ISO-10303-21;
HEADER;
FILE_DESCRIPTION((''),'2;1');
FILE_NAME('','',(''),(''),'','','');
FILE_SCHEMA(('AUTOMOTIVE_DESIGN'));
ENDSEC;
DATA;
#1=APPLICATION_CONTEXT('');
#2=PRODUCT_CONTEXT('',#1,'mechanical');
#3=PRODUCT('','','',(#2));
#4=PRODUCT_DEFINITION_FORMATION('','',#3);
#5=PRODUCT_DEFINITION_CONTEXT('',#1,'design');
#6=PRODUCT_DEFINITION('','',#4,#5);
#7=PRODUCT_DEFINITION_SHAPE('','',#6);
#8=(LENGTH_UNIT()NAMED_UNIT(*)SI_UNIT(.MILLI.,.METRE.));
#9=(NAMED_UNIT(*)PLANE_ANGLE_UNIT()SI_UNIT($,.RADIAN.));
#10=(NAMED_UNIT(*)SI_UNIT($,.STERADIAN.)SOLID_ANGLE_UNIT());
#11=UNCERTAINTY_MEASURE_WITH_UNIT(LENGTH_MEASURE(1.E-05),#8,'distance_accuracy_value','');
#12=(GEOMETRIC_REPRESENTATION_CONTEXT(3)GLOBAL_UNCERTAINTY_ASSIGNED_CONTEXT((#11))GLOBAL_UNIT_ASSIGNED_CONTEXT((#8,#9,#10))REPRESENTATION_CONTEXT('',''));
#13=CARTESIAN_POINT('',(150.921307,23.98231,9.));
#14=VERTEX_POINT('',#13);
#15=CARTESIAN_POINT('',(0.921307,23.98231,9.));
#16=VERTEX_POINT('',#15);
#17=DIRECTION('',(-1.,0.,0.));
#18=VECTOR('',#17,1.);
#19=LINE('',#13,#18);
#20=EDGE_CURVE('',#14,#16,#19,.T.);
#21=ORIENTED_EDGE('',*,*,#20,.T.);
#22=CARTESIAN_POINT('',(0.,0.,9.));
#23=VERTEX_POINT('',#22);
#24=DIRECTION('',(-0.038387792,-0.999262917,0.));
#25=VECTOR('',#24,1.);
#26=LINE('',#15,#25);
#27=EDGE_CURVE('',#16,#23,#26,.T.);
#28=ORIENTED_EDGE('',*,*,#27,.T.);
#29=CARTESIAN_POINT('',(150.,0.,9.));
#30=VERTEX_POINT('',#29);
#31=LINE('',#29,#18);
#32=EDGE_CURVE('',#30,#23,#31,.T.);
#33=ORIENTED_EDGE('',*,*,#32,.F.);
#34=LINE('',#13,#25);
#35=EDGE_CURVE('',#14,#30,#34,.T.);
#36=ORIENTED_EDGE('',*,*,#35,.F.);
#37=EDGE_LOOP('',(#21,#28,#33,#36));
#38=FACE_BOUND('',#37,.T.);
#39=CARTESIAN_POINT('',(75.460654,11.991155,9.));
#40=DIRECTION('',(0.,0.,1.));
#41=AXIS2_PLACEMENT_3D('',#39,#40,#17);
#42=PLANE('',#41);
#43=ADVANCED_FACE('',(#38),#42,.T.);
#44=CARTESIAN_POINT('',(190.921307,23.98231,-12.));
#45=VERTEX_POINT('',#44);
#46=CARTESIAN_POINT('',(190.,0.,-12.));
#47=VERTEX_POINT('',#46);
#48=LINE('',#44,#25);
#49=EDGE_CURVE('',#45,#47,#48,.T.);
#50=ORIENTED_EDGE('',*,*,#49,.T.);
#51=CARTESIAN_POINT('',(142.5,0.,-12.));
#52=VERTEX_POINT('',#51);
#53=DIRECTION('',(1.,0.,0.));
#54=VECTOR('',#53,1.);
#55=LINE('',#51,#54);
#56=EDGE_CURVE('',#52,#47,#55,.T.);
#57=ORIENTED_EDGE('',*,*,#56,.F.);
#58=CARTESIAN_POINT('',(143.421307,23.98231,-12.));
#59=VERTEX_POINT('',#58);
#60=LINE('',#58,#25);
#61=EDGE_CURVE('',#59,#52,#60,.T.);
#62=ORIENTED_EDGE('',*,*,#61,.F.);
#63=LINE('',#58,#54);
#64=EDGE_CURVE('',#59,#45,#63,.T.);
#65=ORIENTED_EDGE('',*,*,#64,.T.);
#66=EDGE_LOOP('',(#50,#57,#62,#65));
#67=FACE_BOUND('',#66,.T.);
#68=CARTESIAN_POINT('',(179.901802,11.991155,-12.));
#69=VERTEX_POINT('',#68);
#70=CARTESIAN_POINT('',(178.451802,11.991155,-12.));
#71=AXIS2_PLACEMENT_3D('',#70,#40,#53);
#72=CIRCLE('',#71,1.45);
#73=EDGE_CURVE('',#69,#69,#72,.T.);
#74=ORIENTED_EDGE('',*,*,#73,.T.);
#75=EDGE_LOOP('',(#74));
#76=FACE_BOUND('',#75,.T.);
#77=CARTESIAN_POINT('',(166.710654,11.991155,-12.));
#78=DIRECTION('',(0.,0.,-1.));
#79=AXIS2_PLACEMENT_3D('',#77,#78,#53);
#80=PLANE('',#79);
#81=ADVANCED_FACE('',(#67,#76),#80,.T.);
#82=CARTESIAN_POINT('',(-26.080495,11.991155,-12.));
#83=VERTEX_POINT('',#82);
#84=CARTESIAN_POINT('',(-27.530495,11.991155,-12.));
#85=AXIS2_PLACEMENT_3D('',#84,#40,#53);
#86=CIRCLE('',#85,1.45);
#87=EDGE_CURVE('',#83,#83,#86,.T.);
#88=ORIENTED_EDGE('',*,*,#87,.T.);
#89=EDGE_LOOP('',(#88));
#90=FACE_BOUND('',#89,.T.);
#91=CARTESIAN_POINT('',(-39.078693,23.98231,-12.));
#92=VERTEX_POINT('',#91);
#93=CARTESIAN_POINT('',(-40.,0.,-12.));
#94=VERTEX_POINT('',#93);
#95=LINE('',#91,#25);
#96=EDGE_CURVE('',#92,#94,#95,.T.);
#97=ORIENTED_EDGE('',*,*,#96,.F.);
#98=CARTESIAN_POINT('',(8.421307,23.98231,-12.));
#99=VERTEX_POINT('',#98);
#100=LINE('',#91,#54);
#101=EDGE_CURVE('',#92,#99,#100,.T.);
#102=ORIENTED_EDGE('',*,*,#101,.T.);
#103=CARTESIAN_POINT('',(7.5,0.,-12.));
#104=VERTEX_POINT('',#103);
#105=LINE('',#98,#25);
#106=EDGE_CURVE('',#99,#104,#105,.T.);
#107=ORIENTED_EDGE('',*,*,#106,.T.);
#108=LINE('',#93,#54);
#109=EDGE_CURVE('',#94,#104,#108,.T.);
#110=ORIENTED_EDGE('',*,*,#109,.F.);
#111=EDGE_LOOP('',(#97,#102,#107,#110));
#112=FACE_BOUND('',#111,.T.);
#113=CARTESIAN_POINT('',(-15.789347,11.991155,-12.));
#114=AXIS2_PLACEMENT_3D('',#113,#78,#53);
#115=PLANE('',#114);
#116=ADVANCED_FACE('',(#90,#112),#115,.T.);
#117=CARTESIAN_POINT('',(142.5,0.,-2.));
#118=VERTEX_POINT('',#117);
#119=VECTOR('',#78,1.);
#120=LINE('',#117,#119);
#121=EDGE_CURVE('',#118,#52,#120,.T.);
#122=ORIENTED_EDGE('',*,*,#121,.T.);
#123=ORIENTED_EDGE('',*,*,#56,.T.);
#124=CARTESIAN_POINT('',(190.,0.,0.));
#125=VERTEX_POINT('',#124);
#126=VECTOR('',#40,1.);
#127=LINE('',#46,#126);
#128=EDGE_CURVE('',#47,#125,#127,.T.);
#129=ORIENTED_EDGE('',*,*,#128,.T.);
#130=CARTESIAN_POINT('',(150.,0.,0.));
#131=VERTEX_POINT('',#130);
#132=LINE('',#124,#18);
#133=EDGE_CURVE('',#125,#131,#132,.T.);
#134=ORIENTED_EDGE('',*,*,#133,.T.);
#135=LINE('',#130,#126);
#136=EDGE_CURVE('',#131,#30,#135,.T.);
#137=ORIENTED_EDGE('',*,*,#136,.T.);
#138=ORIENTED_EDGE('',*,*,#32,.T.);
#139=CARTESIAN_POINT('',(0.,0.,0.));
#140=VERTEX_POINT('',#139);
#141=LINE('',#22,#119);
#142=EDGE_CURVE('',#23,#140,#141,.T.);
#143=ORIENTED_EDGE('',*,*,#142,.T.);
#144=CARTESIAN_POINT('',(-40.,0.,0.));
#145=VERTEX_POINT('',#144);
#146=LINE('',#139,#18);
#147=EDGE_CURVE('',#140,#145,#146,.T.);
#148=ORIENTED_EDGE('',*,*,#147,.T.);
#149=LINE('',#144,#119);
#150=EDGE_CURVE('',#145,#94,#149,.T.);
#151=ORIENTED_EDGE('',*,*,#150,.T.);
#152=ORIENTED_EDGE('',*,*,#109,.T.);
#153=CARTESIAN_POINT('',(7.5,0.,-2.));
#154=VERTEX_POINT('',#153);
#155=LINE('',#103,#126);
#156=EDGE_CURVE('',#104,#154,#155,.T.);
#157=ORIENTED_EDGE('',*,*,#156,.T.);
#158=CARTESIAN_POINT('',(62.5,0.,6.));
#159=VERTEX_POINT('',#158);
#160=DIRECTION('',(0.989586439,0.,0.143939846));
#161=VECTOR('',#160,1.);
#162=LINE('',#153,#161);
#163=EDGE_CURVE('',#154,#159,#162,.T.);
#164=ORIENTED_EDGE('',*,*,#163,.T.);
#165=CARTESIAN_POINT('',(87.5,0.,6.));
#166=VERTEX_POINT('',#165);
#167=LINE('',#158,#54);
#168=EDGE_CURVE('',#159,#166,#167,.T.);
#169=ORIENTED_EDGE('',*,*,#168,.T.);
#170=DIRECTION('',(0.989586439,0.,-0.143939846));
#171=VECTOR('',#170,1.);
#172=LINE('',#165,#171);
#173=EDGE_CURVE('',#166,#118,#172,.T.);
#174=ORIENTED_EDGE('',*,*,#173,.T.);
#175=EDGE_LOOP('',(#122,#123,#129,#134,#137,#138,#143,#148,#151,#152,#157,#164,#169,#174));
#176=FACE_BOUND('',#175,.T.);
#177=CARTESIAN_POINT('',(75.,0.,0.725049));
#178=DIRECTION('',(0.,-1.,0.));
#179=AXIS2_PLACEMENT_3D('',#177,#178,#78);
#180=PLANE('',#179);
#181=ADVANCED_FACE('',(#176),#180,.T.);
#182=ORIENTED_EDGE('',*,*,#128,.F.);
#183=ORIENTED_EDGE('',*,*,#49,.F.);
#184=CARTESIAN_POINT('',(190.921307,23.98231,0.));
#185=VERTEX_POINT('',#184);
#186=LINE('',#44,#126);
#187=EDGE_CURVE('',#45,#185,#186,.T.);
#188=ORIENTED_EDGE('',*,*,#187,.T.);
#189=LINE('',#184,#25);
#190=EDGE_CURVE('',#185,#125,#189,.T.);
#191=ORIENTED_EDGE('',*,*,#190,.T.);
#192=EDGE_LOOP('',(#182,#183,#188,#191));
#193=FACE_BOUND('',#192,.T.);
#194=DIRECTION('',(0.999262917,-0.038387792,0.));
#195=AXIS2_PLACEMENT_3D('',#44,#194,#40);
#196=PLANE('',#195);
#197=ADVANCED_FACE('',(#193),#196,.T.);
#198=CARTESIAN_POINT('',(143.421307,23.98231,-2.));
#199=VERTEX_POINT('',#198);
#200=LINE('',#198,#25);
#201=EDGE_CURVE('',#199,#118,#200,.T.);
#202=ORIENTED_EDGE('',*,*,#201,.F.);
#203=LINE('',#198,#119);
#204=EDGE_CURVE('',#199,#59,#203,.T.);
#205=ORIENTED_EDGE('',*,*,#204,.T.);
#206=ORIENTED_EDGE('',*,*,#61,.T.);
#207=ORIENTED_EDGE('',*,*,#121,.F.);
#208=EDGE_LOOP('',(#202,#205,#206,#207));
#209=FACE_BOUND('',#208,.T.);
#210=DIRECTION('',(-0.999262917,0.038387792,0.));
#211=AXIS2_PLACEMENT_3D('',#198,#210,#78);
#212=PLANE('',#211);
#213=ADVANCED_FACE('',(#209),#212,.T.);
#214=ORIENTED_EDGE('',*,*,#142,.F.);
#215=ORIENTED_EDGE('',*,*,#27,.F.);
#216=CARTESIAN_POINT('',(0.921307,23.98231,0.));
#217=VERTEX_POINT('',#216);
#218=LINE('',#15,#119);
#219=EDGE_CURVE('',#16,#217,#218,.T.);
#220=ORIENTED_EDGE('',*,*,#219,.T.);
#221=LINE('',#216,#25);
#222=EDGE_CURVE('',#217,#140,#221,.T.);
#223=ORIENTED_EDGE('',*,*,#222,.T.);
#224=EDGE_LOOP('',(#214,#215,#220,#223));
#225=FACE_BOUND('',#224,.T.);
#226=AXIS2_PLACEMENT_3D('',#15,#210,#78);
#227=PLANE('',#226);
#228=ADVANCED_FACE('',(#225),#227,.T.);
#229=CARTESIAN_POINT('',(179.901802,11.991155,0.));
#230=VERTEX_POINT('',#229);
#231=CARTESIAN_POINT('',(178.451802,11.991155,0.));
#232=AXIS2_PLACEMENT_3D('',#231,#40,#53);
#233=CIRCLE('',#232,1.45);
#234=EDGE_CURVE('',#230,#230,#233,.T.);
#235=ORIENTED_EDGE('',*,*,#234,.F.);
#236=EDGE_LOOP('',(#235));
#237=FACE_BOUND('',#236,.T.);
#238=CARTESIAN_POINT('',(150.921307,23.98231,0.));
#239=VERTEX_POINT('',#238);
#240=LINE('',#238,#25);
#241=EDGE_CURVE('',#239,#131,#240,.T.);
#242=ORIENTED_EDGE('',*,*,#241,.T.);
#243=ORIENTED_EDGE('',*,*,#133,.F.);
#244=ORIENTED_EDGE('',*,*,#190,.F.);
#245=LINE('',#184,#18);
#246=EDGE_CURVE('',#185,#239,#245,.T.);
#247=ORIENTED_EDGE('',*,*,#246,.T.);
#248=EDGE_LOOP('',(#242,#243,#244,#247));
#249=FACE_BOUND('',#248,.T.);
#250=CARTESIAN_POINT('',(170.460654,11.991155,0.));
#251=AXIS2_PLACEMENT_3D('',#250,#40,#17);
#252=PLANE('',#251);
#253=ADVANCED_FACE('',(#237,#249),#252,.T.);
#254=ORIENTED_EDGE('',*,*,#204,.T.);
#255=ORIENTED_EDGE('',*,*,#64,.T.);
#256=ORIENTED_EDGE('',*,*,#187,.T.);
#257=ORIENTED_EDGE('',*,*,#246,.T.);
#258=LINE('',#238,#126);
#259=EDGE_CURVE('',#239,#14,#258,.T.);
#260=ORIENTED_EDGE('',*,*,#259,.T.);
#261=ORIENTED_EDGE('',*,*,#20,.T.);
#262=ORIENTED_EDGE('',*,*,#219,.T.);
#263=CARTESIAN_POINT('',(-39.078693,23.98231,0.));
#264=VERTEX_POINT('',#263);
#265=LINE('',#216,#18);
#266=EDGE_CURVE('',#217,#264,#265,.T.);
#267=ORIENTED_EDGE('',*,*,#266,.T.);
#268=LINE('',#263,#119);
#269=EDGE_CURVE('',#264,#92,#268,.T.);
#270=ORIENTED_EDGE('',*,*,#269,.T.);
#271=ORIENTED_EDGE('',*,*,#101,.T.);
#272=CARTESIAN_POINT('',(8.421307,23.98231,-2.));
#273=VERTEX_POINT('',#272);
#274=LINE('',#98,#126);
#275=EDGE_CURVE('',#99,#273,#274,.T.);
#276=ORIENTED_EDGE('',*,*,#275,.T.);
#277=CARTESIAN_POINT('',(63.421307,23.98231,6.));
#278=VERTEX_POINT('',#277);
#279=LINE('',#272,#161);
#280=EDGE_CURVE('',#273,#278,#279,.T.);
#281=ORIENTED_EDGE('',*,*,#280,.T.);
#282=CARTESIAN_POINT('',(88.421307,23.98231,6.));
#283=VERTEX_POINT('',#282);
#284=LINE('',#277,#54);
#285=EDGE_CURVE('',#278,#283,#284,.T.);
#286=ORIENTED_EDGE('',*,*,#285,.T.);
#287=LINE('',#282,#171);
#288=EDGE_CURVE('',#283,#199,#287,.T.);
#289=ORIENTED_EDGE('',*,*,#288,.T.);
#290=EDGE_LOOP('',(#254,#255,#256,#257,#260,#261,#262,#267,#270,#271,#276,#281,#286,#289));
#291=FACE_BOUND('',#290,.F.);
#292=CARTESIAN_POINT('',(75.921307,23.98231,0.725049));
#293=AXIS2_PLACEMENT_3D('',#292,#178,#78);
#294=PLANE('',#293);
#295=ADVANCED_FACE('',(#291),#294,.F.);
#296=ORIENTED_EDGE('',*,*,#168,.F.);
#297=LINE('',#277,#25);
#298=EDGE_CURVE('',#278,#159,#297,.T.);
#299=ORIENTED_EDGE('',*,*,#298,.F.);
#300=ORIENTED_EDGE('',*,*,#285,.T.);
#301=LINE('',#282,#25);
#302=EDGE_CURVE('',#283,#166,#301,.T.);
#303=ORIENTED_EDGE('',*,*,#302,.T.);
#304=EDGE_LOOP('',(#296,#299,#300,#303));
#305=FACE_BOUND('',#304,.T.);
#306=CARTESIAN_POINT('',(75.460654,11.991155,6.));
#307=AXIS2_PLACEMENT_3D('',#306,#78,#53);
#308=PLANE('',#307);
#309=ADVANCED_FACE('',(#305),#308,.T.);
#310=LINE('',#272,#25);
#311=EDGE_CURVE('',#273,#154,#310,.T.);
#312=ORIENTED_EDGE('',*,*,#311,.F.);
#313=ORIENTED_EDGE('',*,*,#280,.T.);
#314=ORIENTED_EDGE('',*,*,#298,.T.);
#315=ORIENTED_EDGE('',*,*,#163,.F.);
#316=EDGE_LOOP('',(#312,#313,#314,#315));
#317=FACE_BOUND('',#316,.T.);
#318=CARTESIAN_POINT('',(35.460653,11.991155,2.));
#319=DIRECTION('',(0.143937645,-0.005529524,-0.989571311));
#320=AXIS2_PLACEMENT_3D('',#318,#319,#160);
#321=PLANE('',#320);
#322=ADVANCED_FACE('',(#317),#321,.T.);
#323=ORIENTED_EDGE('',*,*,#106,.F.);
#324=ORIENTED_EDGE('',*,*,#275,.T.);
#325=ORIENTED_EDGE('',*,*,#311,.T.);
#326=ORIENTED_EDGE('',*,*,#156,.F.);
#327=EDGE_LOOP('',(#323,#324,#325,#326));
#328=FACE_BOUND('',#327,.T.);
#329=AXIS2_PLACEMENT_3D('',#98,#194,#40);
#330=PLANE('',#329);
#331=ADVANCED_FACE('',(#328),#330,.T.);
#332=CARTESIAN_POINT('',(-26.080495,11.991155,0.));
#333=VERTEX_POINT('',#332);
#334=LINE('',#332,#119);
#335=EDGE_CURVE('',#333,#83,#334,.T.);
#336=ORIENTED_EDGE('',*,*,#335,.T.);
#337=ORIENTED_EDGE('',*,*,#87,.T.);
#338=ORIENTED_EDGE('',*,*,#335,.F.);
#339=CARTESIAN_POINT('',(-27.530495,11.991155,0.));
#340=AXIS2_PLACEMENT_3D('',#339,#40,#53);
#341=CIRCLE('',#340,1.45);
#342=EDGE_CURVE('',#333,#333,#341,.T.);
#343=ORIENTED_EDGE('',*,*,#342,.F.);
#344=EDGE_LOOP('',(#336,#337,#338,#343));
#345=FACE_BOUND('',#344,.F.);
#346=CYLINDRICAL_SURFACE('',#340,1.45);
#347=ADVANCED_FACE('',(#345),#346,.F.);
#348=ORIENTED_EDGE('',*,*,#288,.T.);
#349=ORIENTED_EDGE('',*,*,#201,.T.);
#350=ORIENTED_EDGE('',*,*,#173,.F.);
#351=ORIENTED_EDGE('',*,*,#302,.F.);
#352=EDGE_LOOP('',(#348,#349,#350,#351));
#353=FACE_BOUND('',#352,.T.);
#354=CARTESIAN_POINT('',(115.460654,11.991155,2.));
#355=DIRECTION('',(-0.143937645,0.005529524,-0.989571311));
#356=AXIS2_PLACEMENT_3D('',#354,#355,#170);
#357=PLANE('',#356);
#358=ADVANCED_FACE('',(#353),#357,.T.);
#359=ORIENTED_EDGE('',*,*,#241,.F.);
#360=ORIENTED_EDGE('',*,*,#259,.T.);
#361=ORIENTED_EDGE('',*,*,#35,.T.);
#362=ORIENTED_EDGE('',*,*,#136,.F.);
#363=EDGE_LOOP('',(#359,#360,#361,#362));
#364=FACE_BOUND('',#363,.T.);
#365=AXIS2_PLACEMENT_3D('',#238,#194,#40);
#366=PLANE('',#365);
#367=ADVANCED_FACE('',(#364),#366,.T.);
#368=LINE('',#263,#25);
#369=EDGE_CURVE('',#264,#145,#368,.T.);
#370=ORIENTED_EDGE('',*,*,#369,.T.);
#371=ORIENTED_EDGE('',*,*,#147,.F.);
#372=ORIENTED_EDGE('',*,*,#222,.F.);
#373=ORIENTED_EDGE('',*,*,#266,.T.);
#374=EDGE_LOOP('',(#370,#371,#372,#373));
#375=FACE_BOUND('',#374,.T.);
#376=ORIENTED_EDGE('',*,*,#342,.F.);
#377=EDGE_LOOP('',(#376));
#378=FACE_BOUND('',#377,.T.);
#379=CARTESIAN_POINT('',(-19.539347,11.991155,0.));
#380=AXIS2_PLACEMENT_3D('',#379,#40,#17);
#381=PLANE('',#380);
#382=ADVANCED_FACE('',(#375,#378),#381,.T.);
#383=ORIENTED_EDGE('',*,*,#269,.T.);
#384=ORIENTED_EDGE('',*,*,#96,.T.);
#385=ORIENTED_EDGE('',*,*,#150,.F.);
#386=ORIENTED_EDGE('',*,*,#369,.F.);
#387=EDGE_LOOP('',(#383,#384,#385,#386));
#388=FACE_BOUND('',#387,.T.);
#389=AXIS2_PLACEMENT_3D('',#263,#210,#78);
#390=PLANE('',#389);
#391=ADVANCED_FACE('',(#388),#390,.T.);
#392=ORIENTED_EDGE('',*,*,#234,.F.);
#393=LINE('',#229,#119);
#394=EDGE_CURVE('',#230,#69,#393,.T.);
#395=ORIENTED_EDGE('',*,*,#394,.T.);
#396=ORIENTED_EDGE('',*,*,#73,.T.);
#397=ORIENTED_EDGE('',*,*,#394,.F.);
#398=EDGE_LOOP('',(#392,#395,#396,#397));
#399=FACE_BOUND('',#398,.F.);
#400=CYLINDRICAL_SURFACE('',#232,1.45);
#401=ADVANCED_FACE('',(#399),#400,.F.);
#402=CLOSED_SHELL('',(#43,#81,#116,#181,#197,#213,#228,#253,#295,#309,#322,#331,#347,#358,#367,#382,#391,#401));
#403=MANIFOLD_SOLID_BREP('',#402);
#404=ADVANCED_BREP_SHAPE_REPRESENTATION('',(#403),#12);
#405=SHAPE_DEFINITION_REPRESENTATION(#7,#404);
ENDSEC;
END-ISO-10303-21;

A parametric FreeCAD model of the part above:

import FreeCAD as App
import Part
import Sketcher

V = App.Vector

doc = App.newDocument("Part")
body = doc.addObject("PartDesign::Body", "Body")

sketch1 = body.newObject("Sketcher::SketchObject", "Sketch")
sketch1.AttachmentSupport = (doc.getObject("XZ_Plane"), [""])
sketch1.MapMode = "FlatFace"
sketch1.addGeometry([
    Part.LineSegment(V(0, 0, 0), V(-40, 0, 0)),
    Part.LineSegment(V(-40, 0, 0), V(-40, -12, 0)),
    Part.LineSegment(V(-40, -12, 0), V(7.5, -12, 0)),
    Part.LineSegment(V(7.5, -12, 0), V(7.5, -2, 0)),
    Part.LineSegment(V(7.5, -2, 0), V(62.5, 6, 0)),
    Part.LineSegment(V(62.5, 6, 0), V(87.5, 6, 0)),
    Part.LineSegment(V(87.5, 6, 0), V(142.5, -2, 0)),
    Part.LineSegment(V(142.5, -2, 0), V(142.5, -12, 0)),
    Part.LineSegment(V(142.5, -12, 0), V(190, -12, 0)),
    Part.LineSegment(V(190, -12, 0), V(190, 0, 0)),
    Part.LineSegment(V(190, 0, 0), V(150, 0, 0)),
    Part.LineSegment(V(150, 0, 0), V(150, 9, 0)),
    Part.LineSegment(V(150, 9, 0), V(0, 9, 0)),
    Part.LineSegment(V(0, 9, 0), V(0, 0, 0)),
], False)
sketch1.addConstraint([
    Sketcher.Constraint("Coincident", 0, 2, 1, 1),
    Sketcher.Constraint("Coincident", 1, 2, 2, 1),
    Sketcher.Constraint("Coincident", 2, 2, 3, 1),
    Sketcher.Constraint("Coincident", 3, 2, 4, 1),
    Sketcher.Constraint("Coincident", 4, 2, 5, 1),
    Sketcher.Constraint("Coincident", 5, 2, 6, 1),
    Sketcher.Constraint("Coincident", 6, 2, 7, 1),
    Sketcher.Constraint("Coincident", 7, 2, 8, 1),
    Sketcher.Constraint("Coincident", 8, 2, 9, 1),
    Sketcher.Constraint("Coincident", 9, 2, 10, 1),
    Sketcher.Constraint("Coincident", 10, 2, 11, 1),
    Sketcher.Constraint("Coincident", 11, 2, 12, 1),
    Sketcher.Constraint("Coincident", 12, 2, 13, 1),
    Sketcher.Constraint("Coincident", 13, 2, 0, 1),
    Sketcher.Constraint("Horizontal", 0),
    Sketcher.Constraint("Vertical", 1),
    Sketcher.Constraint("Horizontal", 2),
    Sketcher.Constraint("Vertical", 3),
    Sketcher.Constraint("Horizontal", 5),
    Sketcher.Constraint("Vertical", 7),
    Sketcher.Constraint("Horizontal", 8),
    Sketcher.Constraint("Vertical", 9),
    Sketcher.Constraint("Horizontal", 10),
    Sketcher.Constraint("Vertical", 11),
    Sketcher.Constraint("Horizontal", 12),
    Sketcher.Constraint("Vertical", 13),
    Sketcher.Constraint("Coincident", 13, 2, -1, 1),
    Sketcher.Constraint("PointOnObject", 9, 2, -1),
    Sketcher.Constraint("Horizontal", 3, 2, 6, 2),
    Sketcher.Constraint("Horizontal", 2, 2, 7, 2),
    Sketcher.Constraint("Equal", 2, 8),
    Sketcher.Constraint("Equal", 0, 10),
    Sketcher.Constraint("Equal", 4, 6),
    Sketcher.Constraint("DistanceX", 0, 2, 0, 1, 40.0),
    Sketcher.Constraint("DistanceX", 5, 1, 5, 2, 25.0),
    Sketcher.Constraint("DistanceX", 12, 2, 12, 1, 150.0),
    Sketcher.Constraint("DistanceY", 1, 2, 1, 1, 12.0),
    Sketcher.Constraint("DistanceY", 3, 1, 3, 2, 10.0),
    Sketcher.Constraint("DistanceY", 11, 1, 11, 2, 9.0),
    Sketcher.Constraint("DistanceX", 2, 1, 2, 2, 47.5),
    Sketcher.Constraint("DistanceY", -1, 1, 4, 2, 6.0),
])

sketch2 = body.newObject("Sketcher::SketchObject", "Sketch001")
sketch2.Placement = App.Placement(V(-39.941055, 1.53438, 0), App.Rotation(V(-0.038387792, -0.999262917, 0), V(0, 0, 1), V(-0.999262917, 0.038387792, 0), "ZXY"))
sketch2.addGeometry(Part.LineSegment(V(-22.464488, 0, 0), V(1.535512, 0, 0)), False)
sketch2.addConstraint([
    Sketcher.Constraint("Horizontal", 0),
    Sketcher.Constraint("PointOnObject", 0, 1, -1),
    Sketcher.Constraint("DistanceX", 0, 1, 0, 2, 24.0),
    Sketcher.Constraint("DistanceX", 0, 1, -1, 1, 22.464488),
])
doc.recompute()

additivepipe = body.newObject("PartDesign::AdditivePipe", "AdditivePipe")
additivepipe.Profile = sketch1
additivepipe.Spine = (sketch2, ["Edge1"])

sketch3 = body.newObject("Sketcher::SketchObject", "Sketch002")
sketch3.AttachmentSupport = (doc.getObject("XY_Plane"), [""])
sketch3.MapMode = "FlatFace"
sketch3.addGeometry([
    Part.Circle(V(178.451802, 11.991155, 0), V(0, 0, 1), 1.45),
    Part.Circle(V(-27.530495, 11.991155, 0), V(0, 0, 1), 1.45),
], False)
sketch3.addConstraint([
    Sketcher.Constraint("Equal", 0, 1),
    Sketcher.Constraint("Horizontal", 0, 3, 1, 3),
    Sketcher.Constraint("Diameter", 0, 2.9),
    Sketcher.Constraint("DistanceX", -1, 1, 0, 3, 178.451802),
    Sketcher.Constraint("DistanceY", -1, 1, 0, 3, 11.991155),
    Sketcher.Constraint("DistanceX", 1, 3, -1, 1, 27.530495),
])
pocket1 = body.newObject("PartDesign::Pocket", "Pocket")
pocket1.Profile = sketch3
pocket1.Type = "ThroughAll"

doc.recompute()
